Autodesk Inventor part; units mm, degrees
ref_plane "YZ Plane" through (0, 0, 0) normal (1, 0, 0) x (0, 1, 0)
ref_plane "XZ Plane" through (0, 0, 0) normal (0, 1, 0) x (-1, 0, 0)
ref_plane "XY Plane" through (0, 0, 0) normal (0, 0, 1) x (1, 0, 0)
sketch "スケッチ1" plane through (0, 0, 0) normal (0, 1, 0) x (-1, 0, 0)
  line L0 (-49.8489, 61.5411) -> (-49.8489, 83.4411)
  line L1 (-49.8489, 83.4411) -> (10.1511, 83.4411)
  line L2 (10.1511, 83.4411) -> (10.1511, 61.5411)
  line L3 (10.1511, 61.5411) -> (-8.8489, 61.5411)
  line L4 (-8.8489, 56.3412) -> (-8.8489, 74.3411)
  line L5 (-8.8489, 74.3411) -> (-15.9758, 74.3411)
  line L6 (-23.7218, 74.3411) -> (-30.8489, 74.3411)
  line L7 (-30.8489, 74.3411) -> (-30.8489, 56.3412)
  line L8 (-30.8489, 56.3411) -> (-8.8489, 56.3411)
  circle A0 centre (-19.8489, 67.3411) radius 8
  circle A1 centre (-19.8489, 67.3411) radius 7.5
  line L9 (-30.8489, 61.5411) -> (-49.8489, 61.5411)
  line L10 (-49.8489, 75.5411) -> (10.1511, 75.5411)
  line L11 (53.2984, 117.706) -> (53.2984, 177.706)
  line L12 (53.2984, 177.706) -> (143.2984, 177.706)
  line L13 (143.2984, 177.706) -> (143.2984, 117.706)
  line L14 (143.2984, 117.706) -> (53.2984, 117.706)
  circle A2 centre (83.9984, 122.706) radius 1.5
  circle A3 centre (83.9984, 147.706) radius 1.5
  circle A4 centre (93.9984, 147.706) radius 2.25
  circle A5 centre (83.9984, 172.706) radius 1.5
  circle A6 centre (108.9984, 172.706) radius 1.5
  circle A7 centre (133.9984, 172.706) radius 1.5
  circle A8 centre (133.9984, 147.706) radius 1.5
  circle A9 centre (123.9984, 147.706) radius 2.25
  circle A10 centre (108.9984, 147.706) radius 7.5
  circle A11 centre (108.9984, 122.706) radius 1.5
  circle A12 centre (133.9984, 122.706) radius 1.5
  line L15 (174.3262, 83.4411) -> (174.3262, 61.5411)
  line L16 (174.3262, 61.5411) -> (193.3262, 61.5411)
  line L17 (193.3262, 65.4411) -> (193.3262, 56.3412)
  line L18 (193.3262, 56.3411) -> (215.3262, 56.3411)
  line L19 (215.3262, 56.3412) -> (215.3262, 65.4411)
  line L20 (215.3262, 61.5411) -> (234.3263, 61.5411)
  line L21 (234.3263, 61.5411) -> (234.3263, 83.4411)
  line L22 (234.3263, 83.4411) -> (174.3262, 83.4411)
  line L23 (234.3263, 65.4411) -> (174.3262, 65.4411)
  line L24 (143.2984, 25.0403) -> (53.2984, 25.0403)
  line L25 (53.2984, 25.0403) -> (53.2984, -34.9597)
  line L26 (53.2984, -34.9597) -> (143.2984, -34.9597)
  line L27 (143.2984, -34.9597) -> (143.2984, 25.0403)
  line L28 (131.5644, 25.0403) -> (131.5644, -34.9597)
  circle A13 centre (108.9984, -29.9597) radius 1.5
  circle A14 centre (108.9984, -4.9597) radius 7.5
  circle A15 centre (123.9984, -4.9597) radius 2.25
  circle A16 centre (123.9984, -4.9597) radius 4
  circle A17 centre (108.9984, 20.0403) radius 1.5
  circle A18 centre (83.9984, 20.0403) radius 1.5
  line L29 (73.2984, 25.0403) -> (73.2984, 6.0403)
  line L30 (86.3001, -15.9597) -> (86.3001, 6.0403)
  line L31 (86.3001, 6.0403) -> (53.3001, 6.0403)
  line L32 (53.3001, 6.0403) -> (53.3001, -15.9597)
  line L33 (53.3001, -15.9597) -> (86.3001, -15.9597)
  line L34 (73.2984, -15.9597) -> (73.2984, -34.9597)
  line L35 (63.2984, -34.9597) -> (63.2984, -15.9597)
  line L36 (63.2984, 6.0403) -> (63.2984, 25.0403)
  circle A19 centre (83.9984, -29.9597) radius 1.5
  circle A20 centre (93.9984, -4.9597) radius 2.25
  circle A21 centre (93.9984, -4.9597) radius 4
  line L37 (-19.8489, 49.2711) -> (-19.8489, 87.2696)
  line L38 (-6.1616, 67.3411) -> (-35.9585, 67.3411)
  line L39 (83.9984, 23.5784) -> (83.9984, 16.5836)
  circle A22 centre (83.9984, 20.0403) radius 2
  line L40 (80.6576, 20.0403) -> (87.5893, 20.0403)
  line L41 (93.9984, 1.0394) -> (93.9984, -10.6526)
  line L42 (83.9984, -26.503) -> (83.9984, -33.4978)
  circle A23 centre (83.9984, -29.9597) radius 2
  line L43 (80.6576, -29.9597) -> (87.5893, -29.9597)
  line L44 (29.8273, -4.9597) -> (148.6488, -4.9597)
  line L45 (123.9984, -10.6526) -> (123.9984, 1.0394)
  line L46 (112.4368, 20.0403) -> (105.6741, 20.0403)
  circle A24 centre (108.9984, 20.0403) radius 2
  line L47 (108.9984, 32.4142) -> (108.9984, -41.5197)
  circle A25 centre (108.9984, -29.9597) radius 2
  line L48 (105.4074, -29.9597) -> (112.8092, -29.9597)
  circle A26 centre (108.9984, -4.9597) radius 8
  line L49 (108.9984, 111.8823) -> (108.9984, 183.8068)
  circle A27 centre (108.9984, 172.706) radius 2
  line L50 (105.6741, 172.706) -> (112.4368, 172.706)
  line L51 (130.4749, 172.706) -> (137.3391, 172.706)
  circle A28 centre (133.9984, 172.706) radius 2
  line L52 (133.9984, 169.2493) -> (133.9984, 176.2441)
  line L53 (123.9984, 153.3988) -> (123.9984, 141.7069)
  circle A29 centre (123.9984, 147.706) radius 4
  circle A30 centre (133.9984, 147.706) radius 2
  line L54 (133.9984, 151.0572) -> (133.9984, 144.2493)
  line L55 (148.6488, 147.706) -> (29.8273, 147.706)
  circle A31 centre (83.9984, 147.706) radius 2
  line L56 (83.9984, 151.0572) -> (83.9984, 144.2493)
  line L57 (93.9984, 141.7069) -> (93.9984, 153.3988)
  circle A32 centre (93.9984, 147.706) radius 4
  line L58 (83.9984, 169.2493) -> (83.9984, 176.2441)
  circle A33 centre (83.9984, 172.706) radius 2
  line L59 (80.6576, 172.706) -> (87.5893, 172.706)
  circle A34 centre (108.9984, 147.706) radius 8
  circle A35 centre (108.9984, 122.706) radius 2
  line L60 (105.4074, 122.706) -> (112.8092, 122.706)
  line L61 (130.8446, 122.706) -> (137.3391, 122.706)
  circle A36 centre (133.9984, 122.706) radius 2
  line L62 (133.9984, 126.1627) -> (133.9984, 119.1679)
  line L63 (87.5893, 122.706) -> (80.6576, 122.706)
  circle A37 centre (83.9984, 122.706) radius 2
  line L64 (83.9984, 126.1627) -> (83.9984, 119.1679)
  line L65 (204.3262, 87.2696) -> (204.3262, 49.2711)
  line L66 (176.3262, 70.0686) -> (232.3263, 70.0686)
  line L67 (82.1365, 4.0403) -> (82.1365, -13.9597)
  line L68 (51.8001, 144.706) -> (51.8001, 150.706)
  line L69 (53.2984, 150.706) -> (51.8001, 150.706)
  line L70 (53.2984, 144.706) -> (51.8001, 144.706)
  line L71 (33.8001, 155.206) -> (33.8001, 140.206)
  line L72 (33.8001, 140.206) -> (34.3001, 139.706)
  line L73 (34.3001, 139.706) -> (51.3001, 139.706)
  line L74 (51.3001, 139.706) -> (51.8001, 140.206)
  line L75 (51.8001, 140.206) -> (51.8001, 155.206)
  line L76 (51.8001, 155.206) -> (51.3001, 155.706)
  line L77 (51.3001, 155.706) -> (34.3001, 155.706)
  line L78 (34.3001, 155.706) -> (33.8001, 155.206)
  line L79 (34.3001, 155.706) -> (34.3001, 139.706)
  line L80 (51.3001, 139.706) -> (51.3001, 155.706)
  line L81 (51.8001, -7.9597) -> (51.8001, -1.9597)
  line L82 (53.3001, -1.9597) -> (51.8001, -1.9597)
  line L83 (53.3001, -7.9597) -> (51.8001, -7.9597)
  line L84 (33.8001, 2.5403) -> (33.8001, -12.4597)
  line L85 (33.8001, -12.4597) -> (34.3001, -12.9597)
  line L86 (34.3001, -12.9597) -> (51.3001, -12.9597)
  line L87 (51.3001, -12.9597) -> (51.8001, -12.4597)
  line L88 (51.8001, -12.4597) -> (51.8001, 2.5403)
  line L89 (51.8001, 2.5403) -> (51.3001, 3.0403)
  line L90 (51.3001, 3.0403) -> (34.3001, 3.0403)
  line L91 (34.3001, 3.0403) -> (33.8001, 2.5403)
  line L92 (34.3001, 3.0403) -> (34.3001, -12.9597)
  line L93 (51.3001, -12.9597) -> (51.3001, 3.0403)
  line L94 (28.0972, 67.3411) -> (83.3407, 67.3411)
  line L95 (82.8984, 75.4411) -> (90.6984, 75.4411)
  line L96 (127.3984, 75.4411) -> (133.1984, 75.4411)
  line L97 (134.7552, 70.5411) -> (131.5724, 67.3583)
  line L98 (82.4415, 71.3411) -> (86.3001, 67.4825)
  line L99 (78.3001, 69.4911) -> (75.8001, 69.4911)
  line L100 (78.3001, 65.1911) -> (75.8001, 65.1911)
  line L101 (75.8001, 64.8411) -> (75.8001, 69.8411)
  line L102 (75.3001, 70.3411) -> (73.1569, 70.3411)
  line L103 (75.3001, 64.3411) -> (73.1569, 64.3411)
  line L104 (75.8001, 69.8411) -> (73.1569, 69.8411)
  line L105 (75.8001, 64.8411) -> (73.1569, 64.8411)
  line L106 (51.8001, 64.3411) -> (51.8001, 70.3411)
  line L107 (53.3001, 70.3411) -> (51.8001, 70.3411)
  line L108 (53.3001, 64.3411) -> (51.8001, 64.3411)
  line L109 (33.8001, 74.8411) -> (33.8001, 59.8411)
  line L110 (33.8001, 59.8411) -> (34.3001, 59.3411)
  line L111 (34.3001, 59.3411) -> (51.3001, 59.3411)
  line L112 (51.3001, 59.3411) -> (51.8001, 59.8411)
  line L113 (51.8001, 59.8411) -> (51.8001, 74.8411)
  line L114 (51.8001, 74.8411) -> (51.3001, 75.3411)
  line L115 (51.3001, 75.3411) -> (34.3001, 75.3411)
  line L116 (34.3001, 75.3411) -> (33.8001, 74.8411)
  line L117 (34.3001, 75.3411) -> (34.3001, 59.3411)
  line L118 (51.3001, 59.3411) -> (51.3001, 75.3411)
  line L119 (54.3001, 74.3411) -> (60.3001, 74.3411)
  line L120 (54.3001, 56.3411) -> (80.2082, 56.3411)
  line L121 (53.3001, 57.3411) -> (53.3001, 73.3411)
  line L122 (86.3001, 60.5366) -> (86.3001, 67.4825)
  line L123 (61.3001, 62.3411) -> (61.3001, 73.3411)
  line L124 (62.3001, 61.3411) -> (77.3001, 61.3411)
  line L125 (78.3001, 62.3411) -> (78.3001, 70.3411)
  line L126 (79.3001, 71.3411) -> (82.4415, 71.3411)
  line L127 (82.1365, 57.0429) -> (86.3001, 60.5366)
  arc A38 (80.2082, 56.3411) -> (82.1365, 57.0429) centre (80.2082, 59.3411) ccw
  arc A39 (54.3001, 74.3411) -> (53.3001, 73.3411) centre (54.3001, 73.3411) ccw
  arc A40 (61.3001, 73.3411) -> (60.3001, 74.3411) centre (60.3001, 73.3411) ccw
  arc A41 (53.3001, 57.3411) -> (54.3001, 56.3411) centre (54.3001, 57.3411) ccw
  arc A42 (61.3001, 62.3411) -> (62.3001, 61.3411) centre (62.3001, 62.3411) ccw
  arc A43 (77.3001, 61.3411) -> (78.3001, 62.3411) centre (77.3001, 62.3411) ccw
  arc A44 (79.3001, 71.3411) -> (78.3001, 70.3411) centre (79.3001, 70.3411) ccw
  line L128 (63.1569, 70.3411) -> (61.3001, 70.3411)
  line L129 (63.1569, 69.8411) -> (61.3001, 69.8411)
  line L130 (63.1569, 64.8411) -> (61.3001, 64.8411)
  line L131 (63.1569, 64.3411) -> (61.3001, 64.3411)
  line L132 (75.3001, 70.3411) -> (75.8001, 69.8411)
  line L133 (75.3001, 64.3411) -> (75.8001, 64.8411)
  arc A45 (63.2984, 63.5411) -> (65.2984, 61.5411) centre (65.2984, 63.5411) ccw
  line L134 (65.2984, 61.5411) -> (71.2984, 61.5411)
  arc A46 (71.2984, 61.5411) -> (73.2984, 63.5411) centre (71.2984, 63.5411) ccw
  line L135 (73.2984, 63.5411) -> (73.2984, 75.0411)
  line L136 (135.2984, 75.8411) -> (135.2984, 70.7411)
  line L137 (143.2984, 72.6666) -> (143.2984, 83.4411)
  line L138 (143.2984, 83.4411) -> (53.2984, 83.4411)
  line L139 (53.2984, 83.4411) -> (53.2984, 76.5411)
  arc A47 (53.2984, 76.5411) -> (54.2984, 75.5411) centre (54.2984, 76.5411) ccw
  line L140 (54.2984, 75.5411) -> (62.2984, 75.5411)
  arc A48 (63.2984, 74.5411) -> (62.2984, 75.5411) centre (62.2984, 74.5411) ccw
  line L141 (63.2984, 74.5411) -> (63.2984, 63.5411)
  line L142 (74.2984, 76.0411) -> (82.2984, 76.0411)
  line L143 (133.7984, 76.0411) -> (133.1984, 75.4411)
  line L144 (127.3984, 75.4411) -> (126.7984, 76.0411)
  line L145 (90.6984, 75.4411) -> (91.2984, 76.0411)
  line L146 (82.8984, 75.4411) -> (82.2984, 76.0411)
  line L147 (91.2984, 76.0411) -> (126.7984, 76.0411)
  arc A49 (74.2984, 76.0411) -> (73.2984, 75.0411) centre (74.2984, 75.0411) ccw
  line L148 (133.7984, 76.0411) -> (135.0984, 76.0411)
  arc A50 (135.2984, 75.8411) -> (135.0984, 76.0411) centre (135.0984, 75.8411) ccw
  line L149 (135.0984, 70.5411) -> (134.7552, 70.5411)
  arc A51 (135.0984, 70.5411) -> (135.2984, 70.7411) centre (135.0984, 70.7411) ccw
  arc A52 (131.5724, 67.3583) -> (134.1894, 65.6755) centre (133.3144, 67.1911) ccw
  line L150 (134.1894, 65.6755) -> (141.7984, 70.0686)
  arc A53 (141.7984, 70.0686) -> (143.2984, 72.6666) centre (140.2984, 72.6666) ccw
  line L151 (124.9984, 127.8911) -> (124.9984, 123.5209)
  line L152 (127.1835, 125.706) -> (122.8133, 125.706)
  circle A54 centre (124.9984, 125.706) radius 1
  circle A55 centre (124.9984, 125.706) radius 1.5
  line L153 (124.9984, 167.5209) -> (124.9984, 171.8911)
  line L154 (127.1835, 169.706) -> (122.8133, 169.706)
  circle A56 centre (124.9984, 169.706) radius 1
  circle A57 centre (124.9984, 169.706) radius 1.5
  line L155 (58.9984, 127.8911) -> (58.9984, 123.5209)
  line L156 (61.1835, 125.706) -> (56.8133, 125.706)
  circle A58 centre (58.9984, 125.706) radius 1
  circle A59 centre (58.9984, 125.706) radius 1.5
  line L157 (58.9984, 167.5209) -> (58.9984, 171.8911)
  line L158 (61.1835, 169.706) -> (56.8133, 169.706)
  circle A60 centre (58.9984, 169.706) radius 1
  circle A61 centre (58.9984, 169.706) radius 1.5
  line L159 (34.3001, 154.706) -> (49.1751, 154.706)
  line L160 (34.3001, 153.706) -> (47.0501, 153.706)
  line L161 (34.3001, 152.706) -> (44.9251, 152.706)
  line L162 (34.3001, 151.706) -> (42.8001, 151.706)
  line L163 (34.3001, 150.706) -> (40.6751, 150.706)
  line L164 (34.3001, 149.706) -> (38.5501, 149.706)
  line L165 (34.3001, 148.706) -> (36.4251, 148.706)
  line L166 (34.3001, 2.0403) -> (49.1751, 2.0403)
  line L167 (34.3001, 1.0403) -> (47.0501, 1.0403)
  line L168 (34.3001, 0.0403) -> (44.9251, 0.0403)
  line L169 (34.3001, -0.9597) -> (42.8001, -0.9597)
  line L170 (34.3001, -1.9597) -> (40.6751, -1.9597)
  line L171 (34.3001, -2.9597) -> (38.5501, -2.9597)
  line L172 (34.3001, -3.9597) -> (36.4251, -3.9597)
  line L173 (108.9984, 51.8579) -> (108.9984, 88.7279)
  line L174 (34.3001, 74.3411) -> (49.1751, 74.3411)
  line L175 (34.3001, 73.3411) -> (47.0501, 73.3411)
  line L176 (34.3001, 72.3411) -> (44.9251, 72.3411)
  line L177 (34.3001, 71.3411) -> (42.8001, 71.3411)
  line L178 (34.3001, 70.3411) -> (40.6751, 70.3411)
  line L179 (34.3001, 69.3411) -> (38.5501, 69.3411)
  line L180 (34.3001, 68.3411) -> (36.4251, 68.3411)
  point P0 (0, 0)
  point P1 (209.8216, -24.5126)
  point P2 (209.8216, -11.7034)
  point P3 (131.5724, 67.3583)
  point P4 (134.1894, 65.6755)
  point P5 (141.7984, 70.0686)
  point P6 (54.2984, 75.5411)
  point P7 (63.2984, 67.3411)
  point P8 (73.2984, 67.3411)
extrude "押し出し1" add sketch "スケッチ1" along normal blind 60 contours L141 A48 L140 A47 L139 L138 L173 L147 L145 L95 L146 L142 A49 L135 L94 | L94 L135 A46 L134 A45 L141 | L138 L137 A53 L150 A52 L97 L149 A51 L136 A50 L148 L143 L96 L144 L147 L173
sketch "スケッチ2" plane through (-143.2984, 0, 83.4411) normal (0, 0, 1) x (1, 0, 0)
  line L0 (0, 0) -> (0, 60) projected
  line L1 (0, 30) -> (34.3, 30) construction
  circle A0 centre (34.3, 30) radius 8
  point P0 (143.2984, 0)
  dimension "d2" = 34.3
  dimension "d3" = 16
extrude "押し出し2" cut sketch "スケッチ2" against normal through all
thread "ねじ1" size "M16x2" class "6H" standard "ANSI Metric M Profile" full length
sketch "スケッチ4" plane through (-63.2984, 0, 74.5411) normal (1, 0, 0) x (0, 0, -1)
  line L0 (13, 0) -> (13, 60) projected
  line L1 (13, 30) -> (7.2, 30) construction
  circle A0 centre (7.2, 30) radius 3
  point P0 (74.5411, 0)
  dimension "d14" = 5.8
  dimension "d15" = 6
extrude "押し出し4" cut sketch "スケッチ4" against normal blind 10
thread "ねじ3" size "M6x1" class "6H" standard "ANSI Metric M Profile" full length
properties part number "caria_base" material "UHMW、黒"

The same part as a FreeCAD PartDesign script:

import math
import FreeCAD as App
import Part
import Sketcher
Q = App.Units.Quantity

doc = App.newDocument("Part")
params = doc.addObject("Spreadsheet::Sheet", "Params")
for row, (alias, value) in enumerate([
    ("sketch1_radius", "2 mm"),
    ("sketch1_radius2", "1 mm"),
    ("sketch1_radius3", "3 mm"),
    ("sketch1_radius4", "0.2 mm"),
    ("sketch1_width", "6 mm"),
    ("pad1_length", "60 mm"),
    ("sketch2_diameter", "16 mm"),
    ("sketch3_diameter", "6 mm"),
    ("pocket2_length", "10 mm"),
], start=1):
    params.set(f"A{row}", alias)
    params.set(f"B{row}", "=" + value)
    params.setAlias(f"B{row}", alias)

body = doc.addObject("PartDesign::Body", "Body")

sketch1 = body.newObject("Sketcher::SketchObject", "Sketch")
sketch1.AttachmentSupport = (doc.getObject("XZ_Plane"), [""])
sketch1.MapMode = "FlatFace"
sketch1.addGeometry([
    Part.LineSegment(App.Vector(-63.3, 74.54, 0), App.Vector(-63.3, 63.54, 0)),
    Part.ArcOfCircle(Part.Circle(App.Vector(-65.3, 63.54, 0), App.Vector(0, 0, 1), 2), math.radians(-90), math.radians(0)),
    Part.LineSegment(App.Vector(-65.3, 61.54, 0), App.Vector(-71.3, 61.54, 0)),
    Part.ArcOfCircle(Part.Circle(App.Vector(-71.3, 63.54, 0), App.Vector(0, 0, 1), 2), math.radians(180), math.radians(270)),
    Part.LineSegment(App.Vector(-73.3, 63.54, 0), App.Vector(-73.3, 75.04, 0)),
    Part.ArcOfCircle(Part.Circle(App.Vector(-74.3, 75.04, 0), App.Vector(0, 0, 1), 1), math.radians(0), math.radians(90)),
    Part.LineSegment(App.Vector(-74.3, 76.04, 0), App.Vector(-82.3, 76.04, 0)),
    Part.LineSegment(App.Vector(-82.3, 76.04, 0), App.Vector(-82.9, 75.44, 0)),
    Part.LineSegment(App.Vector(-82.9, 75.44, 0), App.Vector(-90.7, 75.44, 0)),
    Part.LineSegment(App.Vector(-90.7, 75.44, 0), App.Vector(-91.3, 76.04, 0)),
    Part.LineSegment(App.Vector(-91.3, 76.04, 0), App.Vector(-126.8, 76.04, 0)),
    Part.LineSegment(App.Vector(-126.8, 76.04, 0), App.Vector(-127.4, 75.44, 0)),
    Part.LineSegment(App.Vector(-127.4, 75.44, 0), App.Vector(-133.2, 75.44, 0)),
    Part.LineSegment(App.Vector(-133.2, 75.44, 0), App.Vector(-133.8, 76.04, 0)),
    Part.LineSegment(App.Vector(-133.8, 76.04, 0), App.Vector(-135.1, 76.04, 0)),
    Part.ArcOfCircle(Part.Circle(App.Vector(-135.1, 75.84, 0), App.Vector(0, 0, 1), 0.2), math.radians(90), math.radians(180)),
    Part.LineSegment(App.Vector(-135.3, 75.84, 0), App.Vector(-135.3, 70.74, 0)),
    Part.ArcOfCircle(Part.Circle(App.Vector(-135.1, 70.74, 0), App.Vector(0, 0, 1), 0.2), math.radians(180), math.radians(270)),
    Part.LineSegment(App.Vector(-135.1, 70.54, 0), App.Vector(-134.76, 70.54, 0)),
    Part.LineSegment(App.Vector(-134.76, 70.54, 0), App.Vector(-131.57, 67.36, 0)),
    Part.ArcOfCircle(Part.Circle(App.Vector(-133.31, 67.19, 0), App.Vector(0, 0, 1), 1.75), math.radians(-120), math.radians(5)),
    Part.LineSegment(App.Vector(-134.19, 65.68, 0), App.Vector(-141.8, 70.07, 0)),
    Part.ArcOfCircle(Part.Circle(App.Vector(-140.3, 72.67, 0), App.Vector(0, 0, 1), 3), math.radians(180), math.radians(240)),
    Part.LineSegment(App.Vector(-143.3, 72.67, 0), App.Vector(-143.3, 83.44, 0)),
    Part.LineSegment(App.Vector(-143.3, 83.44, 0), App.Vector(-53.3, 83.44, 0)),
    Part.LineSegment(App.Vector(-53.3, 83.44, 0), App.Vector(-53.3, 76.54, 0)),
    Part.ArcOfCircle(Part.Circle(App.Vector(-54.3, 76.54, 0), App.Vector(0, 0, 1), 1), math.radians(-90), math.radians(0)),
    Part.LineSegment(App.Vector(-54.3, 75.54, 0), App.Vector(-62.3, 75.54, 0)),
    Part.ArcOfCircle(Part.Circle(App.Vector(-62.3, 74.54, 0), App.Vector(0, 0, 1), 1), math.radians(90), math.radians(180)),
], False)
sketch1.addConstraint([
    Sketcher.Constraint("Tangent", 0, 2, 1, 2),
    Sketcher.Constraint("Tangent", 1, 1, 2, 1),
    Sketcher.Constraint("Tangent", 2, 2, 3, 2),
    Sketcher.Constraint("Tangent", 3, 1, 4, 1),
    Sketcher.Constraint("Tangent", 4, 2, 5, 1),
    Sketcher.Constraint("Tangent", 5, 2, 6, 1),
    Sketcher.Constraint("Coincident", 6, 2, 7, 1),
    Sketcher.Constraint("Coincident", 7, 2, 8, 1),
    Sketcher.Constraint("Coincident", 8, 2, 9, 1),
    Sketcher.Constraint("Coincident", 9, 2, 10, 1),
    Sketcher.Constraint("Coincident", 10, 2, 11, 1),
    Sketcher.Constraint("Coincident", 11, 2, 12, 1),
    Sketcher.Constraint("Coincident", 12, 2, 13, 1),
    Sketcher.Constraint("Coincident", 13, 2, 14, 1),
    Sketcher.Constraint("Tangent", 14, 2, 15, 1),
    Sketcher.Constraint("Tangent", 15, 2, 16, 1),
    Sketcher.Constraint("Tangent", 16, 2, 17, 1),
    Sketcher.Constraint("Tangent", 17, 2, 18, 1),
    Sketcher.Constraint("Coincident", 18, 2, 19, 1),
    Sketcher.Constraint("Coincident", 19, 2, 20, 2),
    Sketcher.Constraint("Tangent", 20, 1, 21, 1),
    Sketcher.Constraint("Tangent", 21, 2, 22, 2),
    Sketcher.Constraint("Tangent", 22, 1, 23, 1),
    Sketcher.Constraint("Coincident", 23, 2, 24, 1),
    Sketcher.Constraint("Coincident", 24, 2, 25, 1),
    Sketcher.Constraint("Tangent", 25, 2, 26, 2),
    Sketcher.Constraint("Tangent", 26, 1, 27, 1),
    Sketcher.Constraint("Tangent", 27, 2, 28, 1),
    Sketcher.Constraint("Tangent", 28, 2, 0, 1),
    Sketcher.Constraint("Vertical", 0),
    Sketcher.Constraint("Horizontal", 2),
    Sketcher.Constraint("Vertical", 4),
    Sketcher.Constraint("Horizontal", 6),
    Sketcher.Constraint("Horizontal", 8),
    Sketcher.Constraint("Horizontal", 10),
    Sketcher.Constraint("Horizontal", 12),
    Sketcher.Constraint("Horizontal", 14),
    Sketcher.Constraint("Vertical", 16),
    Sketcher.Constraint("Horizontal", 18),
    Sketcher.Constraint("Vertical", 23),
    Sketcher.Constraint("Horizontal", 24),
    Sketcher.Constraint("Vertical", 25),
    Sketcher.Constraint("Horizontal", 27),
    Sketcher.Constraint("Equal", 1, 3),
    Sketcher.Constraint("Equal", 15, 17),
    Sketcher.Constraint("Equal", 5, 26),
    Sketcher.Constraint("Equal", 26, 28),
    Sketcher.Constraint("Perpendicular", 7, 9),
    Sketcher.Constraint("Perpendicular", 9, 11),
    Sketcher.Constraint("Perpendicular", 11, 13),
    Sketcher.Constraint("Parallel", 13, 19),
    Sketcher.Constraint("Horizontal", 6, 2, 9, 2),
    Sketcher.Constraint("Horizontal", 8, 2, 11, 2),
    Sketcher.Constraint("Horizontal", 10, 2, 13, 2),
    Sketcher.Constraint("Equal", 6, 27),
    Sketcher.Constraint("Equal", 7, 9),
    Sketcher.Constraint("Radius", 1, Q("2 mm")),
    Sketcher.Constraint("Radius", 5, Q("1 mm")),
    Sketcher.Constraint("Radius", 22, Q("3 mm")),
    Sketcher.Constraint("Radius", 15, Q("0.2 mm")),
    Sketcher.Constraint("DistanceX", 2, 2, 2, 1, Q("6 mm")),
    Sketcher.Constraint("DistanceX", 6, 2, 6, 1, Q("8 mm")),
    Sketcher.Constraint("DistanceX", 24, 1, 24, 2, Q("90 mm")),
    Sketcher.Constraint("DistanceY", 0, 2, 0, 1, Q("11 mm")),
    Sketcher.Constraint("Angle", 21, Q("149.9998 deg")),
    Sketcher.Constraint("Radius", 20, Q("1.75 mm")),
    Sketcher.Constraint("DistanceX", 8, 2, 8, 1, Q("7.8 mm")),
    Sketcher.Constraint("DistanceX", 10, 2, 10, 1, Q("35.5 mm")),
    Sketcher.Constraint("DistanceX", 12, 2, 12, 1, Q("5.8 mm")),
    Sketcher.Constraint("DistanceX", 14, 2, 14, 1, Q("1.3 mm")),
    Sketcher.Constraint("DistanceY", 4, 1, 4, 2, Q("11.5 mm")),
    Sketcher.Constraint("DistanceY", 16, 2, 16, 1, Q("5.1 mm")),
    Sketcher.Constraint("DistanceY", 25, 2, 25, 1, Q("6.9 mm")),
    Sketcher.Constraint("DistanceX", 9, 2, 6, 2, Q("9 mm")),
    Sketcher.Constraint("DistanceY", 20, 3, 17, 3, Q("3.55 mm")),
    Sketcher.Constraint("DistanceX", 18, 1, 18, 2, Q("0.3432 mm")),
    Sketcher.Constraint("DistanceY", 23, 1, 23, 2, Q("10.7745 mm")),
    Sketcher.Constraint("DistanceY", -1, 1, 1, 3, Q("63.541 mm")),
    Sketcher.Constraint("DistanceX", 1, 3, -1, 1, Q("65.2984 mm")),
])
sketch1.setExpression("Constraints[56]", "Params.sketch1_radius")
sketch1.setExpression("Constraints[57]", "Params.sketch1_radius2")
sketch1.setExpression("Constraints[58]", "Params.sketch1_radius3")
sketch1.setExpression("Constraints[59]", "Params.sketch1_radius4")
sketch1.setExpression("Constraints[60]", "Params.sketch1_width")
pad1 = body.newObject("PartDesign::Pad", "Pad")
pad1.Profile = sketch1
pad1.setExpression("Length", "Params.pad1_length")
pad1.Reversed = True

sketch2 = body.newObject("Sketcher::SketchObject", "Sketch001")
sketch2.AttachmentSupport = (doc.getObject("XY_Plane"), [""])
sketch2.MapMode = "FlatFace"
sketch2.AttachmentOffset = App.Placement(App.Vector(0, 0, 83.4411), App.Rotation())
sketch2.addGeometry(Part.Circle(App.Vector(-109, 30, 0), App.Vector(0, 0, 1), 8), False)
sketch2.addConstraint([
    Sketcher.Constraint("Diameter", 0, Q("16 mm")),
    Sketcher.Constraint("DistanceY", -1, 1, 0, 3, Q("30 mm")),
    Sketcher.Constraint("DistanceX", 0, 3, -1, 1, Q("108.9984 mm")),
])
sketch2.setExpression("Constraints[0]", "Params.sketch2_diameter")
pocket1 = body.newObject("PartDesign::Pocket", "Pocket")
pocket1.Profile = sketch2
pocket1.Type = "ThroughAll"

sketch3 = body.newObject("Sketcher::SketchObject", "Sketch002")
sketch3.AttachmentSupport = (doc.getObject("YZ_Plane"), [""])
sketch3.MapMode = "FlatFace"
sketch3.AttachmentOffset = App.Placement(App.Vector(0, 0, -63.2984), App.Rotation())
sketch3.addGeometry(Part.Circle(App.Vector(30, 67.3, 0), App.Vector(0, 0, 1), 3), False)
sketch3.addConstraint([
    Sketcher.Constraint("Diameter", 0, Q("6 mm")),
    Sketcher.Constraint("DistanceX", -1, 1, 0, 3, Q("30 mm")),
    Sketcher.Constraint("DistanceY", -1, 1, 0, 3, Q("67.341 mm")),
])
sketch3.setExpression("Constraints[0]", "Params.sketch3_diameter")
pocket2 = body.newObject("PartDesign::Pocket", "Pocket001")
pocket2.Profile = sketch3
pocket2.setExpression("Length", "Params.pocket2_length")

doc.recompute()
